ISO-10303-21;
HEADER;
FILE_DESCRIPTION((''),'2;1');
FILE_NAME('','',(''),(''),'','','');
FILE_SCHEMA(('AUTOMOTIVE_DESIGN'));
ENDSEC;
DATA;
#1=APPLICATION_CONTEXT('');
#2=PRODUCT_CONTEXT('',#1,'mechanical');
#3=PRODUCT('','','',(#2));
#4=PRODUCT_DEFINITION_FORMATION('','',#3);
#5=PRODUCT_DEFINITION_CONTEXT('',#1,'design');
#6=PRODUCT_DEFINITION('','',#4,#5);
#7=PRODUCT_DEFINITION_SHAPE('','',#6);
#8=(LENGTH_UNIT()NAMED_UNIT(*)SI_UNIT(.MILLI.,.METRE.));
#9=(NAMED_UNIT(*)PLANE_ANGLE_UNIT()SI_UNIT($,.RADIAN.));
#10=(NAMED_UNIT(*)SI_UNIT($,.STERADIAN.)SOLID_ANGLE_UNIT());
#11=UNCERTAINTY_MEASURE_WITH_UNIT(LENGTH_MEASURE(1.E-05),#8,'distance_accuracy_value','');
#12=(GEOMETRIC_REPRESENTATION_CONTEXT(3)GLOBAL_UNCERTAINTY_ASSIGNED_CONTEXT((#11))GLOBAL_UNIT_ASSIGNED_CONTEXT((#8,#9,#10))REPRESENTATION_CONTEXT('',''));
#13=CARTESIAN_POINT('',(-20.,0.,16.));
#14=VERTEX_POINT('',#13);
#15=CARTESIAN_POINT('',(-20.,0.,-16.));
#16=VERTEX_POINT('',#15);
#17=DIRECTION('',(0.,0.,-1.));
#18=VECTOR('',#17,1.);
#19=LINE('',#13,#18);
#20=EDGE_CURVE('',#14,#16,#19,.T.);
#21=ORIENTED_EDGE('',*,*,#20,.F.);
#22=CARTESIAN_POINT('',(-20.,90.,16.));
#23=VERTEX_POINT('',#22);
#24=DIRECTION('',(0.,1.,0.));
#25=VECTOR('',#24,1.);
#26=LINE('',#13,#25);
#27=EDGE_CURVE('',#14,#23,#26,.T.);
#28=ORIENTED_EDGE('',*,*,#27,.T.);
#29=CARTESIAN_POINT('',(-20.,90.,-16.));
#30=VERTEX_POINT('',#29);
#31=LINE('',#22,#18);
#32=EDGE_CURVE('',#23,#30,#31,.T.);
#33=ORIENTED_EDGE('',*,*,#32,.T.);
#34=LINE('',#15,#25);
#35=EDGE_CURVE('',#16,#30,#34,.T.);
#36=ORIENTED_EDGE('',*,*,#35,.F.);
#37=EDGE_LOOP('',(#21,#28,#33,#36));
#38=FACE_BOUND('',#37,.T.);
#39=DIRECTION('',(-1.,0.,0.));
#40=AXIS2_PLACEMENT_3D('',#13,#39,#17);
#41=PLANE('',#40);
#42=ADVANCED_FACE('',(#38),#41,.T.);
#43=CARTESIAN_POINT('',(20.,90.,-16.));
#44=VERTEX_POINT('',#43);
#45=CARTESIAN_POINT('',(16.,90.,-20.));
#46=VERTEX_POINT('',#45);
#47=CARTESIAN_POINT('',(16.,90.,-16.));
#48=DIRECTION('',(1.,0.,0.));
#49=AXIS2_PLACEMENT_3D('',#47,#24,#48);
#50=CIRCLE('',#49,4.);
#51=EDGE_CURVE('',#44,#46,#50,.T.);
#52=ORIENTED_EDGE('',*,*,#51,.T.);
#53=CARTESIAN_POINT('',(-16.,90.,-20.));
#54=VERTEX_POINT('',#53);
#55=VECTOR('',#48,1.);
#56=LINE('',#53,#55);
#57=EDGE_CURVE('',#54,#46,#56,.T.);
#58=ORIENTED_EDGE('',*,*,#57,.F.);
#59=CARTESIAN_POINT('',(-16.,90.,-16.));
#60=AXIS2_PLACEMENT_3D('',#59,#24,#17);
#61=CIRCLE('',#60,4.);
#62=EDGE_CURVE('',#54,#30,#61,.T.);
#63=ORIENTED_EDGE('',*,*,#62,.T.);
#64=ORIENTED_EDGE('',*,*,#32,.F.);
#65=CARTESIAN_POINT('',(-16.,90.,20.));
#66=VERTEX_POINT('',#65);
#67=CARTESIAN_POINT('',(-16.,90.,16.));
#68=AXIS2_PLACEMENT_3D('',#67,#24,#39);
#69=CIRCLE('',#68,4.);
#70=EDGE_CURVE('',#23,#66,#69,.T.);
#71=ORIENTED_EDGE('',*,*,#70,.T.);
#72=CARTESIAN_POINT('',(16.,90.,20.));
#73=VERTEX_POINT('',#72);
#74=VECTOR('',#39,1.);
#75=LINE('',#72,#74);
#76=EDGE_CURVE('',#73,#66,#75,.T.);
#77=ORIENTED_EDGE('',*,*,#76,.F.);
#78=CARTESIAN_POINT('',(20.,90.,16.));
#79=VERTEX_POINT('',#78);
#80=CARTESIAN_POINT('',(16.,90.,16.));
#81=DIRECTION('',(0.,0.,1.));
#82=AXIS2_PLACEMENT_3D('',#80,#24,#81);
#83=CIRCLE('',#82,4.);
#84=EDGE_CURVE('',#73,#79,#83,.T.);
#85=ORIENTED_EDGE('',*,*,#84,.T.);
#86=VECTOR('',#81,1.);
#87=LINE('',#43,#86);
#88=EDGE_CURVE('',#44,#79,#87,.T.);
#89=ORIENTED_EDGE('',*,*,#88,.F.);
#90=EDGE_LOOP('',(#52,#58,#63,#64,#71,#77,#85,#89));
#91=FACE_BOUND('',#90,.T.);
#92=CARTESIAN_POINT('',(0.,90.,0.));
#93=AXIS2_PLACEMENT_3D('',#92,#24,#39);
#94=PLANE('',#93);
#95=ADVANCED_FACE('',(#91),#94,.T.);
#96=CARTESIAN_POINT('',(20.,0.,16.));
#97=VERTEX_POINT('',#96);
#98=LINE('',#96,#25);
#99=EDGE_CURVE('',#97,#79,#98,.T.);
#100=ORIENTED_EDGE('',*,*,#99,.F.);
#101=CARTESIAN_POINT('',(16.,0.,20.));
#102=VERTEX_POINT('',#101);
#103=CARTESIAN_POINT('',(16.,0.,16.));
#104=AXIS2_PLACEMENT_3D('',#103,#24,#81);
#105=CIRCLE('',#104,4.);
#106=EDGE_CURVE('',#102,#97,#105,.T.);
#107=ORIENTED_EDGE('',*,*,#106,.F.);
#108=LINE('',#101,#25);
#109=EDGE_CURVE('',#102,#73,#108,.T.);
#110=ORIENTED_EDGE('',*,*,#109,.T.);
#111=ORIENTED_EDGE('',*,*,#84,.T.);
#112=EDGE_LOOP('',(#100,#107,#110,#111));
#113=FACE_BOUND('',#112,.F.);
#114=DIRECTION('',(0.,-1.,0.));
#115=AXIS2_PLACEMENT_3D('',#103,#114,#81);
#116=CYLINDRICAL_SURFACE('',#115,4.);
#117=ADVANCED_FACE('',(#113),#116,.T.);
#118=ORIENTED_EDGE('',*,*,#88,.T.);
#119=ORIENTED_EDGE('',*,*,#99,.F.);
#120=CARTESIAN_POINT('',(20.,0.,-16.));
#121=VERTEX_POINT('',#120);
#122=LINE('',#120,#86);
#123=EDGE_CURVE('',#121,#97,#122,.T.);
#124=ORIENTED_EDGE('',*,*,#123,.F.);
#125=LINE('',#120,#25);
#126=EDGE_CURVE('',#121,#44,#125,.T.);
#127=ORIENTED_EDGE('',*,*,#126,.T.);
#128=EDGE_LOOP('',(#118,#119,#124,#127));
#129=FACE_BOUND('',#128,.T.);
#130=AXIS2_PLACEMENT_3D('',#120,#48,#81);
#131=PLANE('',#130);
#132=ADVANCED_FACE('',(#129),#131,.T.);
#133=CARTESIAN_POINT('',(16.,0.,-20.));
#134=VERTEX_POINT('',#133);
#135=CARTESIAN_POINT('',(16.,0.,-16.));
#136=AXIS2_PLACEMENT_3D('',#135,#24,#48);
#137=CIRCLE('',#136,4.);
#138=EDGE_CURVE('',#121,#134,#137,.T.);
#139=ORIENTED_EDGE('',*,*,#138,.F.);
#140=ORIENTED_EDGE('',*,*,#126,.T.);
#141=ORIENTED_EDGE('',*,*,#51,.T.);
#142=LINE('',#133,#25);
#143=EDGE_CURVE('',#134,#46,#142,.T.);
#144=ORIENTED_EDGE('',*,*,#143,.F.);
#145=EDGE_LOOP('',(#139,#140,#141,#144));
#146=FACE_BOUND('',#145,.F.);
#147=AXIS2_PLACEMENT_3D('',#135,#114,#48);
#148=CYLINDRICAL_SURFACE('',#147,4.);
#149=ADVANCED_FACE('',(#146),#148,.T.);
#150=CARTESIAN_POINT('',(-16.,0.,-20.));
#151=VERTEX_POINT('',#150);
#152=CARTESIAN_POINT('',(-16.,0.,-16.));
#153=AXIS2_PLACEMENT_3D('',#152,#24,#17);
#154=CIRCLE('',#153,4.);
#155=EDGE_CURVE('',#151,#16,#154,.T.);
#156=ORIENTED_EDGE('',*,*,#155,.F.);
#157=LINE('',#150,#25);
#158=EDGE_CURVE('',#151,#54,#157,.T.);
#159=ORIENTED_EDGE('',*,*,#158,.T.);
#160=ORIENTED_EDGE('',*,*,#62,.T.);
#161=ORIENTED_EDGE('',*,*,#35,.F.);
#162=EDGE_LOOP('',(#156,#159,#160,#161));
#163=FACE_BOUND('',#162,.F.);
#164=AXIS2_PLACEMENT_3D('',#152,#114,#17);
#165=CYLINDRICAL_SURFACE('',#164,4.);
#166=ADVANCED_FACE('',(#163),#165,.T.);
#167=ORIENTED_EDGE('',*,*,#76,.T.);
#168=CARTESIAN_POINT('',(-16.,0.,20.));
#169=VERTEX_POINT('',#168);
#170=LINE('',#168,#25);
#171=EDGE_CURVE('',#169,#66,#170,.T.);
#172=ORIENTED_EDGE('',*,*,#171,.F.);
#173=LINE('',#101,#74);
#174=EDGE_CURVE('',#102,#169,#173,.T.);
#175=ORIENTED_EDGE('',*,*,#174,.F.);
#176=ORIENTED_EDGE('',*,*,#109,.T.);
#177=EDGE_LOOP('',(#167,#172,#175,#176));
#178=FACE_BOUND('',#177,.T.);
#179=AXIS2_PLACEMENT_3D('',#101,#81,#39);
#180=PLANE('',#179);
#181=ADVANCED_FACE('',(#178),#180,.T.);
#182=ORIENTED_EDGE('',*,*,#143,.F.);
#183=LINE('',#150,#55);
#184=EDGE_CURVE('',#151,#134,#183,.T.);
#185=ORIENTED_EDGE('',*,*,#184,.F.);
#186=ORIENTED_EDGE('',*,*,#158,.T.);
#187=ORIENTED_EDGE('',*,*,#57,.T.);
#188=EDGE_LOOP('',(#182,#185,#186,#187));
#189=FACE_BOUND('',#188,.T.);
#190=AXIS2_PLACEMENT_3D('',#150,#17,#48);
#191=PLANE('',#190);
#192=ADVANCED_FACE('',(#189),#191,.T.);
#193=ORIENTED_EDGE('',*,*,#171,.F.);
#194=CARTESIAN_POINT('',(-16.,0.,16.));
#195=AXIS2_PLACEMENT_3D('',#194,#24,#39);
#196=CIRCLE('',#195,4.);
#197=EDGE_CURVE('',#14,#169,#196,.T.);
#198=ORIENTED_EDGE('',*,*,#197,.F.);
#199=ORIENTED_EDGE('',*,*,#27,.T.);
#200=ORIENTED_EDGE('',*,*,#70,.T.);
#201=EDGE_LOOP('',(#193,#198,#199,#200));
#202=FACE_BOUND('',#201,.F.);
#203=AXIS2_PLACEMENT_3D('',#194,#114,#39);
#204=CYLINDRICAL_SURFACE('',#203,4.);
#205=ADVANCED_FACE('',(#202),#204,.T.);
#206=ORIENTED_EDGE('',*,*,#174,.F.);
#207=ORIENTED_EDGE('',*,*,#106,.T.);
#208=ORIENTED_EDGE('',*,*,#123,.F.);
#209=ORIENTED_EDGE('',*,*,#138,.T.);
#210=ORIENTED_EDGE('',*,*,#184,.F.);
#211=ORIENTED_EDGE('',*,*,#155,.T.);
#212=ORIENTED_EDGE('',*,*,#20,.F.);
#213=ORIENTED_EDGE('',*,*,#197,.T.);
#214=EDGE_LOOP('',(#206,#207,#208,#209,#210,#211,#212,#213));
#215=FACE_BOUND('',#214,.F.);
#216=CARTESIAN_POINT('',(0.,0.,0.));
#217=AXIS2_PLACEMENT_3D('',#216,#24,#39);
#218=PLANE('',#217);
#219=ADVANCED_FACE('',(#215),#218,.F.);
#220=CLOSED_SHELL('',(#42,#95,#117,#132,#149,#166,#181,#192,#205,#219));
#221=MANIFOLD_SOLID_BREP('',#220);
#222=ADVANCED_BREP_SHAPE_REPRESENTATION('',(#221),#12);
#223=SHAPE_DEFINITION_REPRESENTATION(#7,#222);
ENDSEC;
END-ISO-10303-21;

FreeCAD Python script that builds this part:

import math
import FreeCAD as App
import Part
import Sketcher
Q = App.Units.Quantity

doc = App.newDocument("Part")
body = doc.addObject("PartDesign::Body", "Body")

# Sketch on XZ plane
sketch1 = body.newObject("Sketcher::SketchObject", "Sketch")
sketch1.AttachmentSupport = (doc.getObject("XZ_Plane"), [""])
sketch1.MapMode = "FlatFace"
sketch1.addGeometry(Part.LineSegment(App.Vector(16, -20, 0), App.Vector(-16, -20, 0)), False)
sketch1.addGeometry(Part.ArcOfCircle(Part.Circle(App.Vector(-16, -16, 0), App.Vector(0, 0, 1), 4), math.radians(180), math.radians(270)), False)
sketch1.addGeometry(Part.LineSegment(App.Vector(-20, -16, 0), App.Vector(-20, 16, 0)), False)
sketch1.addGeometry(Part.ArcOfCircle(Part.Circle(App.Vector(-16, 16, 0), App.Vector(0, 0, 1), 4), math.radians(90), math.radians(180)), False)
sketch1.addGeometry(Part.LineSegment(App.Vector(-16, 20, 0), App.Vector(16, 20, 0)), False)
sketch1.addGeometry(Part.ArcOfCircle(Part.Circle(App.Vector(16, 16, 0), App.Vector(0, 0, 1), 4), math.radians(0), math.radians(90)), False)
sketch1.addGeometry(Part.LineSegment(App.Vector(20, 16, 0), App.Vector(20, -16, 0)), False)
sketch1.addGeometry(Part.ArcOfCircle(Part.Circle(App.Vector(16, -16, 0), App.Vector(0, 0, 1), 4), math.radians(-90), math.radians(0)), False)
sketch1.addConstraint(Sketcher.Constraint("Tangent", 0, 2, 1, 2))
sketch1.addConstraint(Sketcher.Constraint("Tangent", 1, 1, 2, 1))
sketch1.addConstraint(Sketcher.Constraint("Tangent", 2, 2, 3, 2))
sketch1.addConstraint(Sketcher.Constraint("Tangent", 3, 1, 4, 1))
sketch1.addConstraint(Sketcher.Constraint("Tangent", 4, 2, 5, 2))
sketch1.addConstraint(Sketcher.Constraint("Tangent", 5, 1, 6, 1))
sketch1.addConstraint(Sketcher.Constraint("Tangent", 6, 2, 7, 2))
sketch1.addConstraint(Sketcher.Constraint("Tangent", 7, 1, 0, 1))
sketch1.addConstraint(Sketcher.Constraint("Horizontal", 0))
sketch1.addConstraint(Sketcher.Constraint("Vertical", 2))
sketch1.addConstraint(Sketcher.Constraint("Horizontal", 4))
sketch1.addConstraint(Sketcher.Constraint("Vertical", 6))
sketch1.addConstraint(Sketcher.Constraint("Equal", 1, 3))
sketch1.addConstraint(Sketcher.Constraint("Equal", 3, 5))
sketch1.addConstraint(Sketcher.Constraint("Equal", 5, 7))
sketch1.addConstraint(Sketcher.Constraint("Symmetric", 1, 3, 5, 3, -1, 1))
sketch1.addConstraint(Sketcher.Constraint("Equal", 4, 2))
sketch1.addConstraint(Sketcher.Constraint("Radius", 1, Q("4 mm")))
sketch1.addConstraint(Sketcher.Constraint("DistanceX", 0, 2, 0, 1, Q("32 mm")))
pad1 = body.newObject("PartDesign::Pad", "Pad")
pad1.Profile = sketch1
pad1.Length = 90
pad1.Reversed = True

doc.recompute()
